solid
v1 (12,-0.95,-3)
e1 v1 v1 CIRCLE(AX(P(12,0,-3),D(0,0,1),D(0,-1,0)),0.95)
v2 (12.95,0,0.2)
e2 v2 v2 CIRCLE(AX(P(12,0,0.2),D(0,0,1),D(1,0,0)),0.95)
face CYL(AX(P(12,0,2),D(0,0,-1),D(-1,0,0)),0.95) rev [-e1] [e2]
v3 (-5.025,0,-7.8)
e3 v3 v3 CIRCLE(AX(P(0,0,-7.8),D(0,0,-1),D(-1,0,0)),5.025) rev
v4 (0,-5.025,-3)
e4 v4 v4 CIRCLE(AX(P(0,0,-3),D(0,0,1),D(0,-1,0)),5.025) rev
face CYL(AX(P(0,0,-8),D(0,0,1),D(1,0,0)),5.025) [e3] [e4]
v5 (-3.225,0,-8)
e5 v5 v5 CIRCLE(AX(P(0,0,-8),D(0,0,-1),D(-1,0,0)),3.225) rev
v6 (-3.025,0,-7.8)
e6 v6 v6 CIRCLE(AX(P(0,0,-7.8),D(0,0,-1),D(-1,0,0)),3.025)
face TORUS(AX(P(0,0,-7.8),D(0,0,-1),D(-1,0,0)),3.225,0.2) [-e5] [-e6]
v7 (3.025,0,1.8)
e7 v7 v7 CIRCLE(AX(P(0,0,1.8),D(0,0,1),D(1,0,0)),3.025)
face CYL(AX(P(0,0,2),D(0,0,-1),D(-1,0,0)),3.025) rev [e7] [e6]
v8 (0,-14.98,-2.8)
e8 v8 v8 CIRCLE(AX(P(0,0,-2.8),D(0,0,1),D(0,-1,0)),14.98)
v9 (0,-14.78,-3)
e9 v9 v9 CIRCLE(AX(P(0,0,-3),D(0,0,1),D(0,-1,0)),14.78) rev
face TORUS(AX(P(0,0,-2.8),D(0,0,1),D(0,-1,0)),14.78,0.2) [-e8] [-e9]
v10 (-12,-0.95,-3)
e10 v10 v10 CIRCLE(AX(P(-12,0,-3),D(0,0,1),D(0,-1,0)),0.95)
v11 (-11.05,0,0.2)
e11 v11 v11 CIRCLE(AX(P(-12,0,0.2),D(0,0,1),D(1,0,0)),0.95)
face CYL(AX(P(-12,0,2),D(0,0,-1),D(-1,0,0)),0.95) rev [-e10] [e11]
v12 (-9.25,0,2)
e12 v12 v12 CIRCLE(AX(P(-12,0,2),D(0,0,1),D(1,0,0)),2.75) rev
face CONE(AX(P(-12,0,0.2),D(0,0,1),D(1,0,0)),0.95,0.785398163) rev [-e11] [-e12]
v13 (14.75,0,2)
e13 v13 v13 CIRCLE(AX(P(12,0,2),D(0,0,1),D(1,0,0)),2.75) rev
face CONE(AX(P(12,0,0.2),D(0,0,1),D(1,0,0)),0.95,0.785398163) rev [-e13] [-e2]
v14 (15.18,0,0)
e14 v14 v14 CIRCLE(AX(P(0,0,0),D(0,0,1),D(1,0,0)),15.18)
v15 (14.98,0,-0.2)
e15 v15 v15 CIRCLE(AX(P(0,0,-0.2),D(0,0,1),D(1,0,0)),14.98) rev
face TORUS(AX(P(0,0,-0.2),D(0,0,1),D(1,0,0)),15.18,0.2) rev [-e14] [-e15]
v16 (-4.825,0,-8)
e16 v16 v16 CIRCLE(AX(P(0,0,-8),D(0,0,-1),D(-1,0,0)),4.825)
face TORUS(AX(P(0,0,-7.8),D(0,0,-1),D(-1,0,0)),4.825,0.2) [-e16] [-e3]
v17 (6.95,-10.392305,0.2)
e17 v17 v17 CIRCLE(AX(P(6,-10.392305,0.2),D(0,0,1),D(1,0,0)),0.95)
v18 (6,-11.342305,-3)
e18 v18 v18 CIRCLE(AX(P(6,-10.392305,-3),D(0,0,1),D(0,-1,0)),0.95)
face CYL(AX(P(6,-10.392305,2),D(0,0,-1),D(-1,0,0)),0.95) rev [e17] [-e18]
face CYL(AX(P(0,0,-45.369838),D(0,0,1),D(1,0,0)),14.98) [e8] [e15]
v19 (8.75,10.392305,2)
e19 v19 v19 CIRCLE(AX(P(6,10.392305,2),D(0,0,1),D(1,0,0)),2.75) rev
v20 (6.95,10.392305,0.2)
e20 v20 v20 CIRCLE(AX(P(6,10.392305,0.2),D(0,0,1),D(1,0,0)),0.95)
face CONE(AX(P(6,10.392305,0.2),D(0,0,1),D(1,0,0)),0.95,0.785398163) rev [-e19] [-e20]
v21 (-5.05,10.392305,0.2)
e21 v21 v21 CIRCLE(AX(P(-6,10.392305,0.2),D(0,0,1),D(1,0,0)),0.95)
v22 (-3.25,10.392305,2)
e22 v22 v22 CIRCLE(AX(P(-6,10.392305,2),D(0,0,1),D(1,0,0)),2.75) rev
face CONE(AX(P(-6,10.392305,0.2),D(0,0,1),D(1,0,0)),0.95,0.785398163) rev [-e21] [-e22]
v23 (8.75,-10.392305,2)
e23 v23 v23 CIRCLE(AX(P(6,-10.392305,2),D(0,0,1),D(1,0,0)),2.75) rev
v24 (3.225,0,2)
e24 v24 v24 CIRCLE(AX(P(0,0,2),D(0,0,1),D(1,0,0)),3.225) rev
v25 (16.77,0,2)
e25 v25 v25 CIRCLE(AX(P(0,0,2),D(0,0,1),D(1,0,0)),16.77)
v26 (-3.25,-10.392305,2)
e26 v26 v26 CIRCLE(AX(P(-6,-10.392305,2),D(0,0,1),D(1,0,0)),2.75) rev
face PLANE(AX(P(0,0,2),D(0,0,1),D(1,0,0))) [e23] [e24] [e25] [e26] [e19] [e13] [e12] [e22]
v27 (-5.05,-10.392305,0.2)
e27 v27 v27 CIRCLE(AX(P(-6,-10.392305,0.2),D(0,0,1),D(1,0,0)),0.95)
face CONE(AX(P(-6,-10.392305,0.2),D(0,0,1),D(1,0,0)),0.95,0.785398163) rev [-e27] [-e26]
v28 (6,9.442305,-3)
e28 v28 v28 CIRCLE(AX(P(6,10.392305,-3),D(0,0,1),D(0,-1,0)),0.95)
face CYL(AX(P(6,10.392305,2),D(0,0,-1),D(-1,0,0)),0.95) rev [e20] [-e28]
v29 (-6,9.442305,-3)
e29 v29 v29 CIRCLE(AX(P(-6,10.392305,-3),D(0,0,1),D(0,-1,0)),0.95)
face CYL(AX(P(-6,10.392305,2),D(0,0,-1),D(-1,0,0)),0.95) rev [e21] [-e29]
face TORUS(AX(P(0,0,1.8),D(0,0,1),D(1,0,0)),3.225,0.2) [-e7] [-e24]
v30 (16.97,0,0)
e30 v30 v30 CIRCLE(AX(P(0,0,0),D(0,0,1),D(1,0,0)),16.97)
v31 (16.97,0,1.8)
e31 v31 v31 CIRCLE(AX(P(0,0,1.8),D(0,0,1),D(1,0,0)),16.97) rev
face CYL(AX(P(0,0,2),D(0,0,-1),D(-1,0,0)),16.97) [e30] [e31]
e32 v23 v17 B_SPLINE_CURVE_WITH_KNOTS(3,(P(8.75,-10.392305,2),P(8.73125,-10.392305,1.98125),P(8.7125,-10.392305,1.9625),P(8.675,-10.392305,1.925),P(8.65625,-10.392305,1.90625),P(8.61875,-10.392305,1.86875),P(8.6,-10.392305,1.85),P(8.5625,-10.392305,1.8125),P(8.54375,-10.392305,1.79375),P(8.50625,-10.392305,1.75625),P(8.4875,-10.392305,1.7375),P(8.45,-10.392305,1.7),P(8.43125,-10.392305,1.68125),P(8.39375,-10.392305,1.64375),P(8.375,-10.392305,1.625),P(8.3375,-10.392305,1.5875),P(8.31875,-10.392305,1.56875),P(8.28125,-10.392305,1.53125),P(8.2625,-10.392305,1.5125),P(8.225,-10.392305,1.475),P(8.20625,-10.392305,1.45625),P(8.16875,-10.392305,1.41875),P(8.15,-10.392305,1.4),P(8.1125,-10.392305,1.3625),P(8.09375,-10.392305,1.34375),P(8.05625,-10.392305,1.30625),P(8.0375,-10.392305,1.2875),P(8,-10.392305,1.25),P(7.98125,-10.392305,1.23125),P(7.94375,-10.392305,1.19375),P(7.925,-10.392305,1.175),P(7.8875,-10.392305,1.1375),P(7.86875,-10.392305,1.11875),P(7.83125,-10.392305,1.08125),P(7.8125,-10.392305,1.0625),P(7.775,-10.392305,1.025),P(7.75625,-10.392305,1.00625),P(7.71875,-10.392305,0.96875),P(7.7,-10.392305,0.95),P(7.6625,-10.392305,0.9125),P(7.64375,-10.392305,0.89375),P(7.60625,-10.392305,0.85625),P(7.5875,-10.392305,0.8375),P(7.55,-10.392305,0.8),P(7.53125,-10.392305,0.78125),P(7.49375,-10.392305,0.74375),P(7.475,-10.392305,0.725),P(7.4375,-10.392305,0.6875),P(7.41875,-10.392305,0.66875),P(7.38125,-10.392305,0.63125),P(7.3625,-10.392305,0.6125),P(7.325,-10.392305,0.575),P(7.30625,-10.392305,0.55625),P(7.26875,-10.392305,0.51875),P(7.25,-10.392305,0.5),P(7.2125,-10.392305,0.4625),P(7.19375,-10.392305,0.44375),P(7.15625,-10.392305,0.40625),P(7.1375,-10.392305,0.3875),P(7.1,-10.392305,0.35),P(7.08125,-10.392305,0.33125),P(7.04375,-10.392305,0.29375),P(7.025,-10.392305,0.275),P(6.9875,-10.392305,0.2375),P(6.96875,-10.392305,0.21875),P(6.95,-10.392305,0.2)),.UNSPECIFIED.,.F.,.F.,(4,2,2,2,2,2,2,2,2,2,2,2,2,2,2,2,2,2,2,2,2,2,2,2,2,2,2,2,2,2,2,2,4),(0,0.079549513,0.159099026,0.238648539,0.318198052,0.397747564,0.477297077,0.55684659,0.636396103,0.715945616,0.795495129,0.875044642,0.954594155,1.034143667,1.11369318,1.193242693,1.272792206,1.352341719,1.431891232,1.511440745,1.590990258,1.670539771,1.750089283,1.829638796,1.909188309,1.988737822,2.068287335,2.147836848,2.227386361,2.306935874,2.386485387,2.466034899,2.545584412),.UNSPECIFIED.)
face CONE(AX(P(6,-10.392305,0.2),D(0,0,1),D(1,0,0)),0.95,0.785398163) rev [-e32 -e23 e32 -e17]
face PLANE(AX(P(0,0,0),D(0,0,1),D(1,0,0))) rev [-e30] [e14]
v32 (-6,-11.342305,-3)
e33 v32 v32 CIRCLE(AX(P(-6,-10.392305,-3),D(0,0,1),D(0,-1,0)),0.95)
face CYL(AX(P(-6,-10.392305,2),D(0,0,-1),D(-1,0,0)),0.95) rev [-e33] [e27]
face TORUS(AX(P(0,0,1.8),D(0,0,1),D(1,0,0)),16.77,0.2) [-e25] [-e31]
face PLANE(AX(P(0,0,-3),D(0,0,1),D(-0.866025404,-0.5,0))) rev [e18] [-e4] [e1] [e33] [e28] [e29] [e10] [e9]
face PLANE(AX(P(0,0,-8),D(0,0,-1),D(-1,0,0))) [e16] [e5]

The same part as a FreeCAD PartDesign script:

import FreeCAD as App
import Part
import Sketcher

V = App.Vector
Q = App.Units.Quantity


def edges_at(feature, points):
    """Names of the edges that pass closest to the given points."""
    edges = feature.Shape.Edges
    near = lambda p: min(range(len(edges)), key=lambda i: edges[i].distToShape(Part.Vertex(*p))[0])
    return sorted({f"Edge{near(p) + 1}" for p in points})

doc = App.newDocument("Part")
body = doc.addObject("PartDesign::Body", "Body")

# Sketch on XY plane
sketch1 = body.newObject("Sketcher::SketchObject", "Sketch")
sketch1.AttachmentSupport = (doc.getObject("XY_Plane"), [""])
sketch1.MapMode = "FlatFace"
sketch1.addGeometry(Part.Circle(V(0, 0, 0), V(0, 0, 1), 17), False)
sketch1.addGeometry(Part.Circle(V(-6, -10.4, 0), V(0, 0, 1), 0.9), False)
sketch1.addGeometry(Part.Circle(V(-12, 0, 0), V(0, 0, 1), 0.9), False)
sketch1.addGeometry(Part.Circle(V(0, 0, 0), V(0, 0, 1), 3), False)
sketch1.addGeometry(Part.Circle(V(6, -10.4, 0), V(0, 0, 1), 0.9), False)
sketch1.addGeometry(Part.Circle(V(12, 0, 0), V(0, 0, 1), 0.9), False)
sketch1.addGeometry(Part.Circle(V(-6, 10.4, 0), V(0, 0, 1), 0.9), False)
sketch1.addGeometry(Part.Circle(V(6, 10.4, 0), V(0, 0, 1), 0.9), False)
sketch1.addConstraint(Sketcher.Constraint("Coincident", 0, 3, -1, 1))
sketch1.addConstraint(Sketcher.Constraint("Coincident", 3, 3, -1, 1))
sketch1.addConstraint(Sketcher.Constraint("Equal", 1, 2))
sketch1.addConstraint(Sketcher.Constraint("Equal", 2, 4))
sketch1.addConstraint(Sketcher.Constraint("Equal", 4, 5))
sketch1.addConstraint(Sketcher.Constraint("Equal", 5, 6))
sketch1.addConstraint(Sketcher.Constraint("Equal", 6, 7))
sketch1.addConstraint(Sketcher.Constraint("Symmetric", 2, 3, 5, 3, -1, 1))
sketch1.addConstraint(Sketcher.Constraint("Symmetric", 4, 3, 6, 3, -1, 1))
sketch1.addConstraint(Sketcher.Constraint("Symmetric", 1, 3, 7, 3, -1, 1))
sketch1.addConstraint(Sketcher.Constraint("Symmetric", 1, 3, 4, 3, -2))
sketch1.addConstraint(Sketcher.Constraint("PointOnObject", 2, 3, -1))
sketch1.addConstraint(Sketcher.Constraint("Diameter", 1, Q("1.9 mm")))
sketch1.addConstraint(Sketcher.Constraint("Diameter", 0, Q("33.94 mm")))
sketch1.addConstraint(Sketcher.Constraint("Diameter", 3, Q("6.05 mm")))
sketch1.addConstraint(Sketcher.Constraint("DistanceX", 1, 3, -1, 1, Q("6 mm")))
sketch1.addConstraint(Sketcher.Constraint("DistanceX", 2, 3, -1, 1, Q("12 mm")))
sketch1.addConstraint(Sketcher.Constraint("DistanceY", 1, 3, 6, 3, Q("20.78461 mm")))
pad1 = body.newObject("PartDesign::Pad", "Pad")
pad1.Profile = sketch1
pad1.Length = 2

# Sketch on XY plane
sketch2 = body.newObject("Sketcher::SketchObject", "Sketch001")
sketch2.AttachmentSupport = (doc.getObject("XY_Plane"), [""])
sketch2.MapMode = "FlatFace"
sketch2.AttachmentOffset = App.Placement(V(0, 0, -3), App.Rotation())
sketch2.addGeometry(Part.Circle(V(0, 0, 0), V(0, 0, 1), 15), False)
sketch2.addGeometry(Part.Circle(V(6, 10.4, 0), V(0, 0, 1), 0.9), False)
sketch2.addGeometry(Part.Circle(V(0, 0, 0), V(0, 0, 1), 3), False)
sketch2.addGeometry(Part.Circle(V(12, 0, 0), V(0, 0, 1), 0.9), False)
sketch2.addGeometry(Part.Circle(V(6, -10.4, 0), V(0, 0, 1), 0.9), False)
sketch2.addGeometry(Part.Circle(V(-6, 10.4, 0), V(0, 0, 1), 0.9), False)
sketch2.addGeometry(Part.Circle(V(-12, 0, 0), V(0, 0, 1), 0.9), False)
sketch2.addGeometry(Part.Circle(V(-6, -10.4, 0), V(0, 0, 1), 0.9), False)
sketch2.addConstraint(Sketcher.Constraint("Coincident", 0, 3, -1, 1))
sketch2.addConstraint(Sketcher.Constraint("Coincident", 2, 3, -1, 1))
sketch2.addConstraint(Sketcher.Constraint("Equal", 1, 3))
sketch2.addConstraint(Sketcher.Constraint("Equal", 3, 4))
sketch2.addConstraint(Sketcher.Constraint("Equal", 4, 5))
sketch2.addConstraint(Sketcher.Constraint("Equal", 5, 6))
sketch2.addConstraint(Sketcher.Constraint("Equal", 6, 7))
sketch2.addConstraint(Sketcher.Constraint("Symmetric", 4, 3, 5, 3, -1, 1))
sketch2.addConstraint(Sketcher.Constraint("Symmetric", 3, 3, 6, 3, -1, 1))
sketch2.addConstraint(Sketcher.Constraint("Symmetric", 1, 3, 7, 3, -1, 1))
sketch2.addConstraint(Sketcher.Constraint("Symmetric", 1, 3, 5, 3, -2))
sketch2.addConstraint(Sketcher.Constraint("PointOnObject", 3, 3, -1))
sketch2.addConstraint(Sketcher.Constraint("Diameter", 1, Q("1.9 mm")))
sketch2.addConstraint(Sketcher.Constraint("Diameter", 0, Q("29.96 mm")))
sketch2.addConstraint(Sketcher.Constraint("Diameter", 2, Q("6.05 mm")))
sketch2.addConstraint(Sketcher.Constraint("DistanceX", -1, 1, 1, 3, Q("6 mm")))
sketch2.addConstraint(Sketcher.Constraint("DistanceX", -1, 1, 3, 3, Q("12 mm")))
sketch2.addConstraint(Sketcher.Constraint("DistanceY", 4, 3, 1, 3, Q("20.78461 mm")))
pad2 = body.newObject("PartDesign::Pad", "Pad001")
pad2.Profile = sketch2
pad2.Length = 3
doc.recompute()

chamfer = body.newObject("PartDesign::Chamfer", "Chamfer")
chamfer.Base = (pad2, edges_at(pad2, [
    (5.05, 10.392, 2),
    (11.05, 0, 2),
    (-6.95, -10.392, 2),
    (5.05, -10.392, 2),
    (-12.95, 0, 2),
    (-6.95, 10.392, 2),
]))
chamfer.Size = 1.8

# Sketch on XY plane
sketch3 = body.newObject("Sketcher::SketchObject", "Sketch002")
sketch3.AttachmentSupport = (doc.getObject("XY_Plane"), [""])
sketch3.MapMode = "FlatFace"
sketch3.AttachmentOffset = App.Placement(V(0, 0, -8), App.Rotation())
sketch3.addGeometry(Part.Circle(V(0, 0, 0), V(0, 0, 1), 5), False)
sketch3.addGeometry(Part.Circle(V(0, 0, 0), V(0, 0, 1), 3), False)
sketch3.addConstraint(Sketcher.Constraint("Coincident", 0, 3, -1, 1))
sketch3.addConstraint(Sketcher.Constraint("Coincident", 1, 3, -1, 1))
sketch3.addConstraint(Sketcher.Constraint("Diameter", 0, Q("10.05 mm")))
sketch3.addConstraint(Sketcher.Constraint("Diameter", 1, Q("6.05 mm")))
pad3 = body.newObject("PartDesign::Pad", "Pad002")
pad3.Profile = sketch3
pad3.Length = 5
doc.recompute()

fillet = body.newObject("PartDesign::Fillet", "Fillet")
fillet.Base = (pad3, edges_at(pad3, [(0, 14.98, 0)]))
fillet.Radius = 0.2
doc.recompute()

fillet2 = body.newObject("PartDesign::Fillet", "Fillet001")
fillet2.Base = (fillet, edges_at(fillet, [
    (-3.025, 0, 2),
    (0, 14.98, -3),
    (-16.97, 0, 2),
    (0, 5.025, -8),
    (3.025, 0, -8),
]))
fillet2.Radius = 0.2

doc.recompute()
